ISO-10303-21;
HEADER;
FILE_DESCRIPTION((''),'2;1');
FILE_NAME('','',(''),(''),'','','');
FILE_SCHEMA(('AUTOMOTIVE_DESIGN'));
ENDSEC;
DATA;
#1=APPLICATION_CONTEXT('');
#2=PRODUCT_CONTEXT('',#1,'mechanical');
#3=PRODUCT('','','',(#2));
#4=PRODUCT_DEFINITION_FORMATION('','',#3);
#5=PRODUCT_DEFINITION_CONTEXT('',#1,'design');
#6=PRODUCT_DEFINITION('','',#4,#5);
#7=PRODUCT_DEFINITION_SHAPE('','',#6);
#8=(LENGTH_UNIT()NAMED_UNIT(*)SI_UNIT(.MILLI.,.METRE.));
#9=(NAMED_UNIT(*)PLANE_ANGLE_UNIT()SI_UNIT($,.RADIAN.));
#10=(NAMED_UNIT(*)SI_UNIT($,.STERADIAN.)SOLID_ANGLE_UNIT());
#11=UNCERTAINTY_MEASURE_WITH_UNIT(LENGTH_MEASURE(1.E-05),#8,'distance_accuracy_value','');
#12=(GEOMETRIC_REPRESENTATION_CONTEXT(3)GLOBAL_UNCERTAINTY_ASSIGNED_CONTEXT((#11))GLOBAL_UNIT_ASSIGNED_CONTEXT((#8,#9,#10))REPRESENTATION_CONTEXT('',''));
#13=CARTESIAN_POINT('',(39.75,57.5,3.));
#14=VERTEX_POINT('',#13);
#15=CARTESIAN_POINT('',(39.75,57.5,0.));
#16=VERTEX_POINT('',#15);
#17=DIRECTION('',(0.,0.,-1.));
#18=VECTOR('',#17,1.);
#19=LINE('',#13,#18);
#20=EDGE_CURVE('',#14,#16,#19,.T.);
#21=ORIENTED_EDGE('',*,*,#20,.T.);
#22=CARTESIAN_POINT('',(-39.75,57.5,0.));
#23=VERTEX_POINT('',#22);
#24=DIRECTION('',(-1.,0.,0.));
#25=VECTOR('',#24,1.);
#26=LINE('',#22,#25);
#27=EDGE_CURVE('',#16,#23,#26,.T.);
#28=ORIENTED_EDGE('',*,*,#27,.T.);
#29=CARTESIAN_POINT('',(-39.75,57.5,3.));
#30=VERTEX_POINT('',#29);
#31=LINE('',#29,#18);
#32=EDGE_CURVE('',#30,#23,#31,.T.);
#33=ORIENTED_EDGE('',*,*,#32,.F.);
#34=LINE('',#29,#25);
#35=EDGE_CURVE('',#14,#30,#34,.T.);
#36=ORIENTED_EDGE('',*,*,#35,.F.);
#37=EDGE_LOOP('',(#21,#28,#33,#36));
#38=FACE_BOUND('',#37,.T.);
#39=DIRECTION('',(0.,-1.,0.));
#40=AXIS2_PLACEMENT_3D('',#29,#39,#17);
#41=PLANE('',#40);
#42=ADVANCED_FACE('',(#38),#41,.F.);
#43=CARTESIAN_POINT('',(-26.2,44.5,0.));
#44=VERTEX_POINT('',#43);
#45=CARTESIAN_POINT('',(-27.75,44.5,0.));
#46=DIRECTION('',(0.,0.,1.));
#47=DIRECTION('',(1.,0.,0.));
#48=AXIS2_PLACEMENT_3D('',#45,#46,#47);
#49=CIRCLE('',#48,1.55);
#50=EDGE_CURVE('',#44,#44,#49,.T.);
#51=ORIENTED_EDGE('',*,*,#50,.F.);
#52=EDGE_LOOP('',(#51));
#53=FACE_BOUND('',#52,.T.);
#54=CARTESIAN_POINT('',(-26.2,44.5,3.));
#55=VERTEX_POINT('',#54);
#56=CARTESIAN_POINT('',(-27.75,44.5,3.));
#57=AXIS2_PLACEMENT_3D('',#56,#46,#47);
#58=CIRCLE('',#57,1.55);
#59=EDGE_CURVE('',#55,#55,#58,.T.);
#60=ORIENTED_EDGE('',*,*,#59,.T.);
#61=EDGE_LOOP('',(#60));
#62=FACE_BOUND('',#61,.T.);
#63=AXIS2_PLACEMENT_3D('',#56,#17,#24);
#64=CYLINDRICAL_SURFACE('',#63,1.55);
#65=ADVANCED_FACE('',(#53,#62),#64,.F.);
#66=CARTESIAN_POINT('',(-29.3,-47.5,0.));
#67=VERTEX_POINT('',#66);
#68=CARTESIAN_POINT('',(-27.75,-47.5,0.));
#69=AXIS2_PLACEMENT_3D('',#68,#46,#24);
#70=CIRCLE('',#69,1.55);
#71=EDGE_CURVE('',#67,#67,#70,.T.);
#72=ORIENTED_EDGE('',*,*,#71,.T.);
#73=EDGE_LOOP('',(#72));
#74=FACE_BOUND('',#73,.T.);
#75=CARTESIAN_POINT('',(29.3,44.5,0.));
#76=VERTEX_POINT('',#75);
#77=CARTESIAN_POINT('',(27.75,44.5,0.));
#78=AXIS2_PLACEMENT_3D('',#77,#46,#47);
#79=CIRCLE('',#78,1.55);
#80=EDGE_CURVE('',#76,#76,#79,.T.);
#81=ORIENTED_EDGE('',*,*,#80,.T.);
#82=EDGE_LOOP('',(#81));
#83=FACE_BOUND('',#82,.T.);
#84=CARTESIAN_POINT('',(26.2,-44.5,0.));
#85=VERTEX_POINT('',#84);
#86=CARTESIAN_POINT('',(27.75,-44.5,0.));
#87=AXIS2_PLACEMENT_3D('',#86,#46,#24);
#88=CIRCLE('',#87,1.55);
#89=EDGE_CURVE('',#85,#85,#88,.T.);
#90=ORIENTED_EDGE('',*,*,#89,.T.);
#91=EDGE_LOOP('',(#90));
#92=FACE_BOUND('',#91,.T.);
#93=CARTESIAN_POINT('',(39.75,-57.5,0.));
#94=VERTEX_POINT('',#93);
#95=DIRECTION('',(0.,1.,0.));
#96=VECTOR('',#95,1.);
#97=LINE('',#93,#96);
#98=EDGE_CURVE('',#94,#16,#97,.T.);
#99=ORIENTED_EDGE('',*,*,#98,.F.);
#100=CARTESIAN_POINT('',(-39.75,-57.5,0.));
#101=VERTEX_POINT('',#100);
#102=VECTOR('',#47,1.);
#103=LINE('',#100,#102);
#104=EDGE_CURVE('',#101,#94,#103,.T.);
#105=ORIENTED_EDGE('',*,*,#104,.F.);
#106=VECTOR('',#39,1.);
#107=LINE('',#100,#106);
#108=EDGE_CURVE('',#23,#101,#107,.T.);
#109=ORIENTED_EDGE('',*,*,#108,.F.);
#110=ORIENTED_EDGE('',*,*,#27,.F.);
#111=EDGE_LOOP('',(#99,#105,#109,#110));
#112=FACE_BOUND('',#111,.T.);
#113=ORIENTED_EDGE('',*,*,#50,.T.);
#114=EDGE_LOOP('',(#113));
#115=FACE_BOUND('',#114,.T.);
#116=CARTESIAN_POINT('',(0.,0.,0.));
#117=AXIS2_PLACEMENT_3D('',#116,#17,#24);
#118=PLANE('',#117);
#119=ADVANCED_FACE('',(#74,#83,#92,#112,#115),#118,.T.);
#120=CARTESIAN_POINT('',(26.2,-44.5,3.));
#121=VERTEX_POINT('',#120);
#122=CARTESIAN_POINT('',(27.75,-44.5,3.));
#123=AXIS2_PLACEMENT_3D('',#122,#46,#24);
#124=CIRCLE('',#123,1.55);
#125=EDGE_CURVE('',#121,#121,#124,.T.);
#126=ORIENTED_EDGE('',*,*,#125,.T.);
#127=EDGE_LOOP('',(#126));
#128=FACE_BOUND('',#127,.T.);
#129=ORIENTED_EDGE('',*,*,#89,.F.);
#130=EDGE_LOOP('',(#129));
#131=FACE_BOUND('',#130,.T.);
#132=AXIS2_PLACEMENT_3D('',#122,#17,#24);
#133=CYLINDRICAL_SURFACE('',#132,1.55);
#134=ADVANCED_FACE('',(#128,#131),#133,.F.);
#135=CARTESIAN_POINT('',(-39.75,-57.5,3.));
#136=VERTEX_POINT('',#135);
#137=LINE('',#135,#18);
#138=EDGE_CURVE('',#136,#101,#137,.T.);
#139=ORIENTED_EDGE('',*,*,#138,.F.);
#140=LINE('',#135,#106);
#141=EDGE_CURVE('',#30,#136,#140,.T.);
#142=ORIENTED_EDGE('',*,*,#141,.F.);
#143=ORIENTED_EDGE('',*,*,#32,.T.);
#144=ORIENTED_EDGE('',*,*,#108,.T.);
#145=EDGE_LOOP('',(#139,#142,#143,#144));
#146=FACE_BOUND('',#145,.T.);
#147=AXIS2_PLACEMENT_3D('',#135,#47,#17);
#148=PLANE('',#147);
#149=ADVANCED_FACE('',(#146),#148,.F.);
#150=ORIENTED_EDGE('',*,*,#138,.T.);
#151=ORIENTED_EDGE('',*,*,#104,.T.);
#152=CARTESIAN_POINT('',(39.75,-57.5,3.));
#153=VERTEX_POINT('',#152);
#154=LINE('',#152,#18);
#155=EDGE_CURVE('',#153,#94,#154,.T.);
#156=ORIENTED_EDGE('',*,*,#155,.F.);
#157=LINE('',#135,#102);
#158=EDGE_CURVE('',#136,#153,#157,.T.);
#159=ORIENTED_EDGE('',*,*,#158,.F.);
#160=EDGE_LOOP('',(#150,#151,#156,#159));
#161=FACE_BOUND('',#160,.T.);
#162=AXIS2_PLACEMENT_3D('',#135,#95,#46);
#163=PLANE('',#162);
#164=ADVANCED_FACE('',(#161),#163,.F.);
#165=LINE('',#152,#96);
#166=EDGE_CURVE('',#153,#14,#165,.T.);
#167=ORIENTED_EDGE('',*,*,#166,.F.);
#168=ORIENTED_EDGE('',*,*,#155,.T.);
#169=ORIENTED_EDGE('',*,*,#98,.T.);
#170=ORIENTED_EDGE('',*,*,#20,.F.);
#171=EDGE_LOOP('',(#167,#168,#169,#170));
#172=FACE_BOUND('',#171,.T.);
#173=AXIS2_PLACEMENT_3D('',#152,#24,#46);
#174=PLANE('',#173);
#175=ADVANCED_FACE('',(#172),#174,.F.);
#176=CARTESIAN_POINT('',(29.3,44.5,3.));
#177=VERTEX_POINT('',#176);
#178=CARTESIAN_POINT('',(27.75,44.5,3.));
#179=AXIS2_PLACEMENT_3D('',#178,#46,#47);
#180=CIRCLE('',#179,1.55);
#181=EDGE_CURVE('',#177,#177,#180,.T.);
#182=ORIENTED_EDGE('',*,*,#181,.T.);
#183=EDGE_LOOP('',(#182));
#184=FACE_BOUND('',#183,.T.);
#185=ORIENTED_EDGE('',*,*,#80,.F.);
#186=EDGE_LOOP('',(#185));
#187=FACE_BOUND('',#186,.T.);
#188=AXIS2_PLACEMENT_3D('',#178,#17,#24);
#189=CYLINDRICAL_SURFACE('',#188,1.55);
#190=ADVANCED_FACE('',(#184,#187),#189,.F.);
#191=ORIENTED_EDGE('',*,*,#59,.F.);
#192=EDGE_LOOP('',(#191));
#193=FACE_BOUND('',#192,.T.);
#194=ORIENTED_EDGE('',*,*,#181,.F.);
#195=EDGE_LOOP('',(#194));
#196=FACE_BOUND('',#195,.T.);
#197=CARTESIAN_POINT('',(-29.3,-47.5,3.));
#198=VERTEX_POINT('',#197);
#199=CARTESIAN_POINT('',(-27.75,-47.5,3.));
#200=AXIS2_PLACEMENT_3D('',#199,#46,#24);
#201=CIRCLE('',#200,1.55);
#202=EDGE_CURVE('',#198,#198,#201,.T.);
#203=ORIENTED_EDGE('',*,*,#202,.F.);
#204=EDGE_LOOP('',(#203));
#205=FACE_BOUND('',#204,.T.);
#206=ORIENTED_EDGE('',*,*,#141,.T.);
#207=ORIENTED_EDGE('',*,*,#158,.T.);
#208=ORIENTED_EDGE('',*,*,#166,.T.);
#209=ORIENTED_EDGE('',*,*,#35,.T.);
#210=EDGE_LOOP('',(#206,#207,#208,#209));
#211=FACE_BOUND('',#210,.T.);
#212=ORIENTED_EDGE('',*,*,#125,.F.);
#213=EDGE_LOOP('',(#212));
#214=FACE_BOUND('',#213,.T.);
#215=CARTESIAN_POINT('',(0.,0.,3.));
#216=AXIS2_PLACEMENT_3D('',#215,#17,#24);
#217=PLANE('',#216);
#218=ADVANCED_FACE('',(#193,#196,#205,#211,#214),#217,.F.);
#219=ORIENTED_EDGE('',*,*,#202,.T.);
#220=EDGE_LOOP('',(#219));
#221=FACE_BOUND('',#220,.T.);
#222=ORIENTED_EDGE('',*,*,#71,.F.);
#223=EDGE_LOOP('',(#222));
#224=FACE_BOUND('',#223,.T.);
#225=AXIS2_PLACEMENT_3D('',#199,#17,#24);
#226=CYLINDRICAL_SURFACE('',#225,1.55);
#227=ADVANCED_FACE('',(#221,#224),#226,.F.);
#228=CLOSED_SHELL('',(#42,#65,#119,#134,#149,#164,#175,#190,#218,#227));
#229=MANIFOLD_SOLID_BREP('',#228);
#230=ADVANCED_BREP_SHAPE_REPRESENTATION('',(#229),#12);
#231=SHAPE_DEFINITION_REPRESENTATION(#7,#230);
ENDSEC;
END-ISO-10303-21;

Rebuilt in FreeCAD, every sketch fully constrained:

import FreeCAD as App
import Part
import Sketcher

V = App.Vector


def add_polygon(sketch, points):
    """Adds a closed chain of lines whose ends are joined by coincident constraints."""
    first, n = sketch.GeometryCount, len(points)
    for a, b in zip(points, points[1:] + points[:1]):
        sketch.addGeometry(Part.LineSegment(App.Vector(*a, 0), App.Vector(*b, 0)), False)
    for i in range(n):
        sketch.addConstraint(Sketcher.Constraint("Coincident", first + i, 2, first + (i + 1) % n, 1))

doc = App.newDocument("Part")
params = doc.addObject("Spreadsheet::Sheet", "Params")
for row, (alias, value) in enumerate([
    ("sketch1_diameter", "3.1 mm"),
    ("sketch1_height", "115 mm"),
    ("sketch1_width", "79.5 mm"),
    ("pad1_length", "3 mm"),
], start=1):
    params.set(f"A{row}", alias)
    params.set(f"B{row}", "=" + value)
    params.setAlias(f"B{row}", alias)

body = doc.addObject("PartDesign::Body", "Body")

sketch1 = doc.addObject("Sketcher::SketchObject", "Sketch")
body.addObject(sketch1)
sketch1.AttachmentSupport = (doc.XY_Plane, [""])
sketch1.MapMode = "FlatFace"
add_polygon(sketch1, [(-39.8, 57.5), (-39.8, -57.5), (39.8, -57.5), (39.8, 57.5)])
sketch1.addGeometry(Part.Circle(V(-27.8, -47.5, 0), V(0, 0, 1), 1.6), False)
sketch1.addGeometry(Part.Circle(V(27.8, -44.5, 0), V(0, 0, 1), 1.6), False)
sketch1.addGeometry(Part.Circle(V(-27.8, 44.5, 0), V(0, 0, 1), 1.6), False)
sketch1.addGeometry(Part.Circle(V(27.8, 44.5, 0), V(0, 0, 1), 1.6), False)
sketch1.addConstraint([
    Sketcher.Constraint("Vertical", 0),
    Sketcher.Constraint("Horizontal", 1),
    Sketcher.Constraint("Vertical", 2),
    Sketcher.Constraint("Horizontal", 3),
    Sketcher.Constraint("Equal", 4, 5),
    Sketcher.Constraint("Equal", 5, 6),
    Sketcher.Constraint("Equal", 6, 7),
    Sketcher.Constraint("Symmetric", 5, 3, 6, 3, -1, 1),
    Sketcher.Constraint("Symmetric", 0, 2, 2, 2, -1, 1),
    Sketcher.Constraint("Symmetric", 6, 3, 7, 3, -2),
    Sketcher.Constraint("Vertical", 4, 3, 6, 3),
    Sketcher.Constraint("Diameter", 4, 3.1),
    Sketcher.Constraint("DistanceY", 0, 2, 0, 1, 115.0),
    Sketcher.Constraint("DistanceX", 1, 1, 1, 2, 79.5),
    Sketcher.Constraint("DistanceY", 4, 3, 5, 3, 3.0),
    Sketcher.Constraint("DistanceY", 4, 3, 6, 3, 92.0),
    Sketcher.Constraint("DistanceX", 0, 2, 4, 3, 12.0),
])
sketch1.setExpression("Constraints[15]", "Params.sketch1_diameter")
sketch1.setExpression("Constraints[16]", "Params.sketch1_height")
sketch1.setExpression("Constraints[17]", "Params.sketch1_width")
pad1 = doc.addObject("PartDesign::Pad", "Pad")
body.addObject(pad1)
pad1.Profile = sketch1
pad1.setExpression("Length", "Params.pad1_length")

doc.recompute()
